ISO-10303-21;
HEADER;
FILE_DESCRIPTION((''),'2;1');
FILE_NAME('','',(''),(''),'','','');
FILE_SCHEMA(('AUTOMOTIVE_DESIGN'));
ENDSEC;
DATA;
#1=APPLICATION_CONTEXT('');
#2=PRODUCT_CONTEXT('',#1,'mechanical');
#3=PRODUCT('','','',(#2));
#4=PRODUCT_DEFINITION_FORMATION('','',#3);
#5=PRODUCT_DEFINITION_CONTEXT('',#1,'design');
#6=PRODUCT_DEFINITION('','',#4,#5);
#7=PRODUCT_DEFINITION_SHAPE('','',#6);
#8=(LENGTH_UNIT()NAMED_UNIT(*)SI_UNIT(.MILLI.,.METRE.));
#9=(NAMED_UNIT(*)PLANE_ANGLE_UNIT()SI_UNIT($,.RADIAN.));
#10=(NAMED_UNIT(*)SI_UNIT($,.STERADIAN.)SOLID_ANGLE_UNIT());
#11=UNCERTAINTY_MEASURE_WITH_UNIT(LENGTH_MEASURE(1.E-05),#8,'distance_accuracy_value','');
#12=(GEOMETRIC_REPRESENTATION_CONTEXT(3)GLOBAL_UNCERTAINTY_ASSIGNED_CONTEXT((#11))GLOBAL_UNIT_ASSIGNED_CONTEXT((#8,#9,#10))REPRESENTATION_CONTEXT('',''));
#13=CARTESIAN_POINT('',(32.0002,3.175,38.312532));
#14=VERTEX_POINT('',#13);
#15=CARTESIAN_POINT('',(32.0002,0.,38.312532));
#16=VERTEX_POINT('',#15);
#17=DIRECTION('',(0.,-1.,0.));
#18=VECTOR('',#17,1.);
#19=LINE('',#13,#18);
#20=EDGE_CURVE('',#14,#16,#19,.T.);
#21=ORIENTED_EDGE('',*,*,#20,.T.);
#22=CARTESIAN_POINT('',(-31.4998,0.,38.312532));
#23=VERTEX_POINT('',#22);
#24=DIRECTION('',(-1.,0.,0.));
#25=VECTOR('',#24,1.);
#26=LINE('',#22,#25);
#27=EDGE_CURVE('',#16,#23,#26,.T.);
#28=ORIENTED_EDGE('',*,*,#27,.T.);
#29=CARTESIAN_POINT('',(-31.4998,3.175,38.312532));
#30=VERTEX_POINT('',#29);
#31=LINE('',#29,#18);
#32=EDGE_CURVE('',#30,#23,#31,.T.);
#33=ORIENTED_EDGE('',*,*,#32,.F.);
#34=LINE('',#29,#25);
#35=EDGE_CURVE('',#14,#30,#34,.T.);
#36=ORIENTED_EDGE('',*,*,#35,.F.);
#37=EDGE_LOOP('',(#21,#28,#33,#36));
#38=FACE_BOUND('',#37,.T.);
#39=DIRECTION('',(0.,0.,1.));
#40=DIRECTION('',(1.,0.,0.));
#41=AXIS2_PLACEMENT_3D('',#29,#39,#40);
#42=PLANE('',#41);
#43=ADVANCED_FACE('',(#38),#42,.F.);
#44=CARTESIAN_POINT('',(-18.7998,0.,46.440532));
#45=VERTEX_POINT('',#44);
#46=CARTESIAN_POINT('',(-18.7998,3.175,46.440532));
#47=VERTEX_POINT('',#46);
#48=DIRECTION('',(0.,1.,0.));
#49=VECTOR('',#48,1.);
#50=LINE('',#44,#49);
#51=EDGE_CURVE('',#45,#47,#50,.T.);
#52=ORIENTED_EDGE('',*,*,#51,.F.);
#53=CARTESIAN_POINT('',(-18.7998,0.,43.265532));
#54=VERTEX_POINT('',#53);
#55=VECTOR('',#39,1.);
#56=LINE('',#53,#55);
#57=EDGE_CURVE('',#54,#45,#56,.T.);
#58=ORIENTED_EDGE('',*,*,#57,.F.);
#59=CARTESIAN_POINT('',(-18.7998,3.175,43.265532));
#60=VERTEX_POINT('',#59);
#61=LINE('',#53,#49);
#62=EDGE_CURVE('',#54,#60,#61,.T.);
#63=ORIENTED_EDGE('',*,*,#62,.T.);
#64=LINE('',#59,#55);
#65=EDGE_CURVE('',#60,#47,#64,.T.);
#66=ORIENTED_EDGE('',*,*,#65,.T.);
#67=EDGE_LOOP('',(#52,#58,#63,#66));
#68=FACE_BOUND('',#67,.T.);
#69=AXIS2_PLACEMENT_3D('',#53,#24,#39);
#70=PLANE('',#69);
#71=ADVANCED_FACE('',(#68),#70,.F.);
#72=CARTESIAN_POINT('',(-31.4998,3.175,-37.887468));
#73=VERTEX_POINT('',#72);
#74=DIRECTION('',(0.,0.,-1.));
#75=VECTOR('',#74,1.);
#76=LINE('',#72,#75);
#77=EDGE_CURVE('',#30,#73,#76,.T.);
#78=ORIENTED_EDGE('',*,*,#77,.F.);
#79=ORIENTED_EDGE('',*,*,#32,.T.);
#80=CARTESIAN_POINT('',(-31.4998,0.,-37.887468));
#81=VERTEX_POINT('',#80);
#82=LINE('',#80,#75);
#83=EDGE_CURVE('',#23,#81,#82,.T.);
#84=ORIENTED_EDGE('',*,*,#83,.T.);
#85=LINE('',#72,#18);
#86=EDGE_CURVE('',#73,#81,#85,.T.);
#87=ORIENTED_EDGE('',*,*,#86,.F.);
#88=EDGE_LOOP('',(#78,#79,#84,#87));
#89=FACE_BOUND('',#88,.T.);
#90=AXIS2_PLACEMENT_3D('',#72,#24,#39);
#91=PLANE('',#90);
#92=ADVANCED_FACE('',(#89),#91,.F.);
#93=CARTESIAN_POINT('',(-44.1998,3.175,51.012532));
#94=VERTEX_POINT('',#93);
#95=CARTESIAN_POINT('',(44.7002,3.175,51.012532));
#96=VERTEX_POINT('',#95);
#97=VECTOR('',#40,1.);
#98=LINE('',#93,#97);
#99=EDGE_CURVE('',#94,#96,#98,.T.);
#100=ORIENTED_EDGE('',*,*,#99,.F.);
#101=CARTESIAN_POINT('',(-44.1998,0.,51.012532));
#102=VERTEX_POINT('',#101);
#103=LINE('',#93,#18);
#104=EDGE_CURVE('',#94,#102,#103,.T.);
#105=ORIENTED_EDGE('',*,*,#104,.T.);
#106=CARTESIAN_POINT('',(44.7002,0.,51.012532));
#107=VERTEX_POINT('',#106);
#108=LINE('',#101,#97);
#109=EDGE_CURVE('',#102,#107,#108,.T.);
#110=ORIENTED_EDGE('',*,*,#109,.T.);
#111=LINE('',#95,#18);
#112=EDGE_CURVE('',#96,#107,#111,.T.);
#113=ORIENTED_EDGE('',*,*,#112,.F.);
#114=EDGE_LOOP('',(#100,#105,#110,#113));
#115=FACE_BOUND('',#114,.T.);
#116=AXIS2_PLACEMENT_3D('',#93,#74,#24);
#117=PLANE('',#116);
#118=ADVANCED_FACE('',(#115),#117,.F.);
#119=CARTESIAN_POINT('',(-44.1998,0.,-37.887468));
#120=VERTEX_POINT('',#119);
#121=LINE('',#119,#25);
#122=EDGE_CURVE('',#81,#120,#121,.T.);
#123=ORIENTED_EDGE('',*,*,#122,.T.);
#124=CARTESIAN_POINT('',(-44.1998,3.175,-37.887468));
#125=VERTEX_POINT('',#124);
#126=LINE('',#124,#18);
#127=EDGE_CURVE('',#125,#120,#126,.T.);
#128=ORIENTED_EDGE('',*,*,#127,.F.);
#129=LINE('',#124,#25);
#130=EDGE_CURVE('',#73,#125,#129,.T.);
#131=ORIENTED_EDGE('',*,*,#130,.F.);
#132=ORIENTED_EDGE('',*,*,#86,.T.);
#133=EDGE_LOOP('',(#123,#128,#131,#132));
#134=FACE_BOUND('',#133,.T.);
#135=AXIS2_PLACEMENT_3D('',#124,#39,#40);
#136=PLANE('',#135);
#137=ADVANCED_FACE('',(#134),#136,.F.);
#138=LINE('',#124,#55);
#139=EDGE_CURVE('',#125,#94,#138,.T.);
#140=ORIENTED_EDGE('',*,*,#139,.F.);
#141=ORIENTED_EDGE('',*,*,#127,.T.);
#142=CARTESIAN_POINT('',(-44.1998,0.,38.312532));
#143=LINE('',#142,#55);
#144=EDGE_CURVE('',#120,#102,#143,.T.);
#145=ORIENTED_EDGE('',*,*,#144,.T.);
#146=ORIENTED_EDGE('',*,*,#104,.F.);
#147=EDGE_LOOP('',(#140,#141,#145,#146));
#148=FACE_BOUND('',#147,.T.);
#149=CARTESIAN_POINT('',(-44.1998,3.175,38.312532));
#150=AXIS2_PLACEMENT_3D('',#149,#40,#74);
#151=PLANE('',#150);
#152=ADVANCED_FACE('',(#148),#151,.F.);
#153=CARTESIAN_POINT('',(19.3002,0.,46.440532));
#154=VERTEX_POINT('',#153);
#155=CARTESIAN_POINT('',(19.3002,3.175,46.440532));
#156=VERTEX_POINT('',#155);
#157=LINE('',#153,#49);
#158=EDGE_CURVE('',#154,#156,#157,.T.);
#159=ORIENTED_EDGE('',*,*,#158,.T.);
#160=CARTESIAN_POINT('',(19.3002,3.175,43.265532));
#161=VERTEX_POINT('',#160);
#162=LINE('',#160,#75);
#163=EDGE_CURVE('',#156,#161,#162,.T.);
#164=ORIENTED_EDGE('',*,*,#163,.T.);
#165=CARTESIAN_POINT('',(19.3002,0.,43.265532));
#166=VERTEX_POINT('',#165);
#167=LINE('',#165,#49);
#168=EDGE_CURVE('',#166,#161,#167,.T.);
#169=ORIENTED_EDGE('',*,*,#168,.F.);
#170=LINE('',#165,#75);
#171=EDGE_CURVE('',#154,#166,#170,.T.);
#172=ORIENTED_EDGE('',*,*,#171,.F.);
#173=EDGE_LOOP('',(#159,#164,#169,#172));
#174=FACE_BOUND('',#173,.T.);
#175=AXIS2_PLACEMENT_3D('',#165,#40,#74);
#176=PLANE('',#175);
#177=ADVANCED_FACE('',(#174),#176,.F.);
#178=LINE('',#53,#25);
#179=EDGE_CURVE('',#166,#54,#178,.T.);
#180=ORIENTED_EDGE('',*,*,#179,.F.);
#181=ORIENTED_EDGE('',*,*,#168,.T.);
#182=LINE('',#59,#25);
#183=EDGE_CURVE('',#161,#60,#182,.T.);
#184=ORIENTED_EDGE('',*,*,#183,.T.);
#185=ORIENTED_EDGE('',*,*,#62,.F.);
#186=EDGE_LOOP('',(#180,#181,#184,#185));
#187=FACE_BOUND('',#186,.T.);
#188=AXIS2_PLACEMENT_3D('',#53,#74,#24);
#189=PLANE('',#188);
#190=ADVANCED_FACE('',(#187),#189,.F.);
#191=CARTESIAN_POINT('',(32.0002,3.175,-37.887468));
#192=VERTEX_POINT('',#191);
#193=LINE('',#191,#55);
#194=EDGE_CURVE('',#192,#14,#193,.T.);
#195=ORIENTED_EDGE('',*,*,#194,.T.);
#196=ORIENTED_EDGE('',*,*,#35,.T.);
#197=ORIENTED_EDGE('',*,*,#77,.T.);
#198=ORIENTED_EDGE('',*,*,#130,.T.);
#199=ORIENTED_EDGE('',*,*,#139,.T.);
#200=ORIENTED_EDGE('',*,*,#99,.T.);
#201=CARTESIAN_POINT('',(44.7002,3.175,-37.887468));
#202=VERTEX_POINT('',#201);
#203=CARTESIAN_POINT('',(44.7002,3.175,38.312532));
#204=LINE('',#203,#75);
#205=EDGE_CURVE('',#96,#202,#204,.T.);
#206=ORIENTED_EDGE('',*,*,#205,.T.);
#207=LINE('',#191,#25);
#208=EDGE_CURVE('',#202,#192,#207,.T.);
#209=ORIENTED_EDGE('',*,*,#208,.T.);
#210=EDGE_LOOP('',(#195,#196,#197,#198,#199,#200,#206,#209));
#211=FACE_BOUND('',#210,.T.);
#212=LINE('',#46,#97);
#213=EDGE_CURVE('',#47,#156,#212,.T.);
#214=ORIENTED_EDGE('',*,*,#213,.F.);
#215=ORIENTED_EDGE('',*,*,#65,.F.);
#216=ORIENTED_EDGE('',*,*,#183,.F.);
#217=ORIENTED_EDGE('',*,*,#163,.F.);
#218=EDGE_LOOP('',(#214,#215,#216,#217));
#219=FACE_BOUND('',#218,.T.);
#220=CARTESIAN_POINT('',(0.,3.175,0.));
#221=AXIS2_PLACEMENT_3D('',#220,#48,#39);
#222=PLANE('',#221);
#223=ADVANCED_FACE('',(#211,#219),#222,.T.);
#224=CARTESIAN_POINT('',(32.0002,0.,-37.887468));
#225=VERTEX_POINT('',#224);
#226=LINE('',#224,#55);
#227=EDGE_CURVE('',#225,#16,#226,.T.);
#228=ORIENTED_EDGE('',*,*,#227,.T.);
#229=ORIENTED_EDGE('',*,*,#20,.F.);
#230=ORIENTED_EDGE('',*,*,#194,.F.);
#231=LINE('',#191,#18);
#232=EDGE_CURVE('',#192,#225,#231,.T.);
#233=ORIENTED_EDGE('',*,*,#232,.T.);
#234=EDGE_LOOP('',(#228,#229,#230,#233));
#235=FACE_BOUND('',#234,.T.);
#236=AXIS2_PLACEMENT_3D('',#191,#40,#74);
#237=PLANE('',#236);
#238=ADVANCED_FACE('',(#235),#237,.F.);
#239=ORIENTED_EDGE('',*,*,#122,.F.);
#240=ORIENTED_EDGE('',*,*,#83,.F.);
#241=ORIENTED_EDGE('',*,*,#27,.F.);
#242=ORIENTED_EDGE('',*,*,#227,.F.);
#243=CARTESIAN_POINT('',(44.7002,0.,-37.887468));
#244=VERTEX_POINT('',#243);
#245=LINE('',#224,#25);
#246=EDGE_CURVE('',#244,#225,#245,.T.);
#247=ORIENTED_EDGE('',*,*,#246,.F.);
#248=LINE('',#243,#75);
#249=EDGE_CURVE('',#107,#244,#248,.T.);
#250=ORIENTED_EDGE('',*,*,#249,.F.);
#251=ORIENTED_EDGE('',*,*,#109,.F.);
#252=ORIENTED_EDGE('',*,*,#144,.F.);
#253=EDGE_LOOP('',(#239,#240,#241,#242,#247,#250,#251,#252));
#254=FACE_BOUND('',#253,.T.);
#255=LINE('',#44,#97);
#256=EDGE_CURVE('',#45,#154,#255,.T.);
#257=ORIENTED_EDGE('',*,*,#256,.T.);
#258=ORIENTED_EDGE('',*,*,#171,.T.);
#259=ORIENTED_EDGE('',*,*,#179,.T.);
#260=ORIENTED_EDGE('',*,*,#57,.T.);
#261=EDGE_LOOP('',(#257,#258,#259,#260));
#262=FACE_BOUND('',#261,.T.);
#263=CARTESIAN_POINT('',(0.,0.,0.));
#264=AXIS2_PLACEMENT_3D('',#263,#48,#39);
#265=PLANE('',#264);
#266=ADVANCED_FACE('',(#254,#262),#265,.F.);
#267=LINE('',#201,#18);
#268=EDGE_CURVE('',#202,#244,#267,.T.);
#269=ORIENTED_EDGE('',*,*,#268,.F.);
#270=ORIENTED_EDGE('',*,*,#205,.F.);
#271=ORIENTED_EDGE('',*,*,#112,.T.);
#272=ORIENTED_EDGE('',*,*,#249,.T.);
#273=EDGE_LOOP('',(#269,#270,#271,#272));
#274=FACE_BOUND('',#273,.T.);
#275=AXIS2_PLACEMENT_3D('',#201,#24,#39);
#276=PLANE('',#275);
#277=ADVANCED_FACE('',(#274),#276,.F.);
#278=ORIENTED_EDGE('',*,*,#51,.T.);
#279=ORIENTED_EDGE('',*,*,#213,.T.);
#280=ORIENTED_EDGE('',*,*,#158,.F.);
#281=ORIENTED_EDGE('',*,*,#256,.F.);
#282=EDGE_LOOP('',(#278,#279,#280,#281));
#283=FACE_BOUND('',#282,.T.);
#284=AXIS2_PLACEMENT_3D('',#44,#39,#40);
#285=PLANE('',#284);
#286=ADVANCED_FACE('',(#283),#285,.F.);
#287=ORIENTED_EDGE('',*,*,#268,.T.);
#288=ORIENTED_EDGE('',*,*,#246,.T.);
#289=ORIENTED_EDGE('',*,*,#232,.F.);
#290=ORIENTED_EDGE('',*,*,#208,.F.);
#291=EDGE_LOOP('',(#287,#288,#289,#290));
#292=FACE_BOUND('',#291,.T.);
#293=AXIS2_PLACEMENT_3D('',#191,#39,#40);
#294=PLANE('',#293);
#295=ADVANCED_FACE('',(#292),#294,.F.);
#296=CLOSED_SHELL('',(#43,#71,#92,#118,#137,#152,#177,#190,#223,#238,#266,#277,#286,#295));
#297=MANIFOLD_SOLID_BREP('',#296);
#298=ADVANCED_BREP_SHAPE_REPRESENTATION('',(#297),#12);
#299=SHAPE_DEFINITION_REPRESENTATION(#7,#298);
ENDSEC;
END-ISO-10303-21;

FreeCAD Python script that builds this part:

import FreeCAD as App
import Part
import Sketcher

V = App.Vector
Q = App.Units.Quantity


def add_polygon(sketch, points):
    """Adds a closed chain of lines whose ends are joined by coincident constraints."""
    first, n = sketch.GeometryCount, len(points)
    for a, b in zip(points, points[1:] + points[:1]):
        sketch.addGeometry(Part.LineSegment(App.Vector(*a, 0), App.Vector(*b, 0)), False)
    for i in range(n):
        sketch.addConstraint(Sketcher.Constraint("Coincident", first + i, 2, first + (i + 1) % n, 1))

doc = App.newDocument("Part")
body = doc.addObject("PartDesign::Body", "Body")

# Sketch on XZ plane
sketch1 = body.newObject("Sketcher::SketchObject", "Sketch")
sketch1.AttachmentSupport = (doc.getObject("XZ_Plane"), [""])
sketch1.MapMode = "FlatFace"
add_polygon(sketch1, [(-31, -38), (-44, -38), (-44, 51), (45, 51), (45, -38), (32, -38), (32, 38), (-31, 38)])  # lines 0-7
sketch1.addConstraint([
    Sketcher.Constraint("Horizontal", 0),
    Sketcher.Constraint("Vertical", 1),
    Sketcher.Constraint("Horizontal", 2),
    Sketcher.Constraint("Vertical", 3),
    Sketcher.Constraint("Horizontal", 4),
    Sketcher.Constraint("Vertical", 5),
    Sketcher.Constraint("Horizontal", 6),
    Sketcher.Constraint("Vertical", 7),
    Sketcher.Constraint("Horizontal", 0, 2, 3, 2),
    Sketcher.Constraint("Equal", 0, 4),
    Sketcher.Constraint("Equal", 2, 1),
    Sketcher.Constraint("DistanceY", 5, 1, 5, 2, Q("3 in")),
    Sketcher.Constraint("DistanceX", 0, 2, 0, 1, Q("0.5 in")),
    Sketcher.Constraint("DistanceX", 2, 1, 2, 2, Q("3.5 in")),
    Sketcher.Constraint("DistanceX", 0, 2, -1, 1, 44.1998),
    Sketcher.Constraint("DistanceY", 0, 2, -1, 1, 37.887468),
])
pad1 = body.newObject("PartDesign::Pad", "Pad")
pad1.Profile = sketch1
pad1.Length = Q("0.125 in")
pad1.Reversed = True

# Sketch on XZ plane
sketch2 = body.newObject("Sketcher::SketchObject", "Sketch001")
sketch2.AttachmentSupport = (doc.getObject("XZ_Plane"), [""])
sketch2.MapMode = "FlatFace"
sketch2.AttachmentOffset = App.Placement(V(0, 0, -0.125 * 25.4), App.Rotation())
add_polygon(sketch2, [(-18.8, 43.3), (-18.8, 46.4), (19.3, 46.4), (19.3, 43.3)])  # lines 0-3
sketch2.addConstraint([
    Sketcher.Constraint("Vertical", 0),
    Sketcher.Constraint("Horizontal", 1),
    Sketcher.Constraint("Vertical", 2),
    Sketcher.Constraint("Horizontal", 3),
    Sketcher.Constraint("DistanceX", 1, 1, 1, 2, Q("1.5 in")),
    Sketcher.Constraint("DistanceY", 0, 1, 0, 2, Q("0.125 in")),
    Sketcher.Constraint("DistanceX", 0, 2, -1, 1, 18.7998),
    Sketcher.Constraint("DistanceY", -1, 1, 0, 2, 46.440532),
])
pocket1 = body.newObject("PartDesign::Pocket", "Pocket")
pocket1.Profile = sketch2
pocket1.Length = Q("0.125 in")
pocket1.Reversed = True

doc.recompute()
